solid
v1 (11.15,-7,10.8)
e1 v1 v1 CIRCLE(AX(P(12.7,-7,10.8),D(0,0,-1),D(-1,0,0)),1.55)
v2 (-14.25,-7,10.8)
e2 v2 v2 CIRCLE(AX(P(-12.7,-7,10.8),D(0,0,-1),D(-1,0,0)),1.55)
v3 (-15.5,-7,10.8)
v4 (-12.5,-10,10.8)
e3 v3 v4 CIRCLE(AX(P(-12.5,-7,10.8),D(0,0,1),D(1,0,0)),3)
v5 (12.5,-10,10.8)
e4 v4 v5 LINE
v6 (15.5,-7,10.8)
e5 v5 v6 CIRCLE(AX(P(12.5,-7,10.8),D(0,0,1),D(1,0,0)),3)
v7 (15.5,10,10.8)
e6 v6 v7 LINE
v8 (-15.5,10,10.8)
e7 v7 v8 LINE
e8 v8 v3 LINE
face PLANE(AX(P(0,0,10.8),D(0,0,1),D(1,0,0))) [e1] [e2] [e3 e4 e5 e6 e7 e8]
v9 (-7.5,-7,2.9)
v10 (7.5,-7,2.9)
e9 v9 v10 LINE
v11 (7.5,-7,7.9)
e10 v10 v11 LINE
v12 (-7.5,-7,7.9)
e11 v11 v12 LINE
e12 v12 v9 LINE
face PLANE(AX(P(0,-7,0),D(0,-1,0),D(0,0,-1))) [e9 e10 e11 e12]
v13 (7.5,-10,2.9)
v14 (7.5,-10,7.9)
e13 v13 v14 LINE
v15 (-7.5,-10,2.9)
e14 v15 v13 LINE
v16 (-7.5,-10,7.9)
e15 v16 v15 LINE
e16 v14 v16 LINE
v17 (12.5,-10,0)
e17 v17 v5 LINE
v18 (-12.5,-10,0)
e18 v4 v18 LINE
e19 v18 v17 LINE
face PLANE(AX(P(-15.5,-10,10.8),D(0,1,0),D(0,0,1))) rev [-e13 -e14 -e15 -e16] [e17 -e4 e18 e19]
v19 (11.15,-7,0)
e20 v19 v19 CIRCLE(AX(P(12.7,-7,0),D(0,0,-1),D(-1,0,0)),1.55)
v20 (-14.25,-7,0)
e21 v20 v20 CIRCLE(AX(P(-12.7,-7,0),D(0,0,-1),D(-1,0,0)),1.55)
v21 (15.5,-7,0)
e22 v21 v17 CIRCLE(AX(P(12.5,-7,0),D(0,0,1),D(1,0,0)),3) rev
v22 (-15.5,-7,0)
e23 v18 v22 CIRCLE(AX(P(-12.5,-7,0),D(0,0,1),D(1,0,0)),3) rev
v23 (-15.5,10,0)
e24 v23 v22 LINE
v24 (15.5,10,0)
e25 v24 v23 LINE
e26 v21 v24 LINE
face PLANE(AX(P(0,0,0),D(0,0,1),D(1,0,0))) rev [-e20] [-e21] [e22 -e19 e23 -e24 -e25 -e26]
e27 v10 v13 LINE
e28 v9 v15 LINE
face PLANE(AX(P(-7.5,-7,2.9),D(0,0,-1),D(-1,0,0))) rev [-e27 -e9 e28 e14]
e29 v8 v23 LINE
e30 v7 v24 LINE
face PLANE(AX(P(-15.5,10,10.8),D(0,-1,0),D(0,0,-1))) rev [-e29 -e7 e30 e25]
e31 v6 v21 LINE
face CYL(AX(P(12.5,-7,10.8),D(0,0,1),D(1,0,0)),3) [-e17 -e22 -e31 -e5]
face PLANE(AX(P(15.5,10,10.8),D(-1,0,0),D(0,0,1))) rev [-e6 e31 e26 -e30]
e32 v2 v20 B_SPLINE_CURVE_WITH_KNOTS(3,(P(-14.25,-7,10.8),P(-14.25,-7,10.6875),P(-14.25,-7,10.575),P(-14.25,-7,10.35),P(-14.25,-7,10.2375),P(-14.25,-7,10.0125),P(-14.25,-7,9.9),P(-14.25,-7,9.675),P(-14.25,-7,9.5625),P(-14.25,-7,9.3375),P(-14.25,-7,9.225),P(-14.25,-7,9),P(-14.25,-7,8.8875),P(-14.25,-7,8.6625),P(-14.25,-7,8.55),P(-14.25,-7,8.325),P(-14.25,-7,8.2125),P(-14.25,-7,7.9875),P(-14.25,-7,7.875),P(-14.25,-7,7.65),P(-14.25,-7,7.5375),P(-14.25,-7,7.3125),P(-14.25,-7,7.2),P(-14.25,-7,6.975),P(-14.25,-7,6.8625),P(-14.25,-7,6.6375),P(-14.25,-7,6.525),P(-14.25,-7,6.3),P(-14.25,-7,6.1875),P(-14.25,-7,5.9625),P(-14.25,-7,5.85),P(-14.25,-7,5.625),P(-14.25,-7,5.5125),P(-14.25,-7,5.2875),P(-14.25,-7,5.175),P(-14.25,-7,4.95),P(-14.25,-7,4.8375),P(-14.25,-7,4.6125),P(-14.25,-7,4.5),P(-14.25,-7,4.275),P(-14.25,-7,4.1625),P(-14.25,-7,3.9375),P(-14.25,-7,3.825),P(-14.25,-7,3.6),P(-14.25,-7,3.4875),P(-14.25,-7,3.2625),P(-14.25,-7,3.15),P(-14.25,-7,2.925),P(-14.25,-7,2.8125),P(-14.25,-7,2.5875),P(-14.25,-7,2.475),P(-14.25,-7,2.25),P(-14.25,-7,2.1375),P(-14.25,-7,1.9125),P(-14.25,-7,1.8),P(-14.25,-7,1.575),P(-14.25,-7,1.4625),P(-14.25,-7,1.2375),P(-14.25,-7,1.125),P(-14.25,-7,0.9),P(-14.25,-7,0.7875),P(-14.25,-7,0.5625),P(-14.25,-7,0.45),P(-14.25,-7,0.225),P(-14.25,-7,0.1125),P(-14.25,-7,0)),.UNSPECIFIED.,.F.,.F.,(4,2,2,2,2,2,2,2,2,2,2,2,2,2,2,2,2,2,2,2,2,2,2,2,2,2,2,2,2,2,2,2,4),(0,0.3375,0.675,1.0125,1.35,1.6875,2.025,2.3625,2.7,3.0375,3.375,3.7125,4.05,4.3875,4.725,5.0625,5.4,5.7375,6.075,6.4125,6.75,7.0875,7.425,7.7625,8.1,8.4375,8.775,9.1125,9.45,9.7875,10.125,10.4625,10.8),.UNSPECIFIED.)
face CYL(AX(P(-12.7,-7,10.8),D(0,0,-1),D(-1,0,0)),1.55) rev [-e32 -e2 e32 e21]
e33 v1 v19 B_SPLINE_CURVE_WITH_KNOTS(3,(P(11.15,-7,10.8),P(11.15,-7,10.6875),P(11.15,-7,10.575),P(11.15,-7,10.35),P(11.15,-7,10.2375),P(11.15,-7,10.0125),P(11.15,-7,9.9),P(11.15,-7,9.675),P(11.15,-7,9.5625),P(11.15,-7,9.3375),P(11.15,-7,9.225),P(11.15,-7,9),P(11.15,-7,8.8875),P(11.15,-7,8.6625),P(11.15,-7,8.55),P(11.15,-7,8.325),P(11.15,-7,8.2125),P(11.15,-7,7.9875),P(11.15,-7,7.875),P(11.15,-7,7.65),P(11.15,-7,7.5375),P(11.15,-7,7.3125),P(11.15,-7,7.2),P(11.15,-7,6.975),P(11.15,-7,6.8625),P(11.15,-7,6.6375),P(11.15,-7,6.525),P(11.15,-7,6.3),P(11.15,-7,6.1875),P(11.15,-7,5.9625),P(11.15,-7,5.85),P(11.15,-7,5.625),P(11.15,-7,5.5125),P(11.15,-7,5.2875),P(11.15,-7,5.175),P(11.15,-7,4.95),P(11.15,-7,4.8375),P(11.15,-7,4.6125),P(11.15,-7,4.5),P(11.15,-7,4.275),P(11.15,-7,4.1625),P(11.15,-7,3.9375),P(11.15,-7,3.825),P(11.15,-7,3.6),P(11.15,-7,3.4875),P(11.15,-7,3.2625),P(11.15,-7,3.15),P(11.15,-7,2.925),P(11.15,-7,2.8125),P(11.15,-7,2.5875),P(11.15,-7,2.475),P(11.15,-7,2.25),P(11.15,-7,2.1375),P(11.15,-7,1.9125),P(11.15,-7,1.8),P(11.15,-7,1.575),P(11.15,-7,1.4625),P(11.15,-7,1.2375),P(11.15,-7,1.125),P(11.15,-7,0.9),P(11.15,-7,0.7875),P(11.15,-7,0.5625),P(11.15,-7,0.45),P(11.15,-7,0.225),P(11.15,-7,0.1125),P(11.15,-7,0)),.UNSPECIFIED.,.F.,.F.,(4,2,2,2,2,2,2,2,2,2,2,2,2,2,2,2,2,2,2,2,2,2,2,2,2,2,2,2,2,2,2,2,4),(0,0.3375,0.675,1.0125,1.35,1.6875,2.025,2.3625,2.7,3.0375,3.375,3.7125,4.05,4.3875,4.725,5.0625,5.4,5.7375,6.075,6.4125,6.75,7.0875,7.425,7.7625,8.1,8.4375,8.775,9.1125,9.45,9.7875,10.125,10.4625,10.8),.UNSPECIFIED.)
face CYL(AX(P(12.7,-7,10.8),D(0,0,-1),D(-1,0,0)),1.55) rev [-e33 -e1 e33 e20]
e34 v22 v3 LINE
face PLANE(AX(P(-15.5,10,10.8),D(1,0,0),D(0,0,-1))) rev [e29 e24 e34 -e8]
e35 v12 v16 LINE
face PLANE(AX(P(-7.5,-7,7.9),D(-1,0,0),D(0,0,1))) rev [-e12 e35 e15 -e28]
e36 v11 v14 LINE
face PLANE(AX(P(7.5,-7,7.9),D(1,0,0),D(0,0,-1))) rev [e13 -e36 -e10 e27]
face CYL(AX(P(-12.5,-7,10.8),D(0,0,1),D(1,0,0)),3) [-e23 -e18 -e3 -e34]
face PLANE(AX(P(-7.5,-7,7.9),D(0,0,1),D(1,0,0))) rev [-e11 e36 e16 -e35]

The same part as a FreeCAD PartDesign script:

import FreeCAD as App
import Part
import Sketcher

V = App.Vector
Q = App.Units.Quantity


def edges_at(feature, points):
    """Names of the edges that pass closest to the given points."""
    edges = feature.Shape.Edges
    near = lambda p: min(range(len(edges)), key=lambda i: edges[i].distToShape(Part.Vertex(*p))[0])
    return sorted({f"Edge{near(p) + 1}" for p in points})


def add_polygon(sketch, points):
    """Adds a closed chain of lines whose ends are joined by coincident constraints."""
    first, n = sketch.GeometryCount, len(points)
    for a, b in zip(points, points[1:] + points[:1]):
        sketch.addGeometry(Part.LineSegment(App.Vector(*a, 0), App.Vector(*b, 0)), False)
    for i in range(n):
        sketch.addConstraint(Sketcher.Constraint("Coincident", first + i, 2, first + (i + 1) % n, 1))

doc = App.newDocument("Part")
body = doc.addObject("PartDesign::Body", "Body")

# Sketch on XY plane
sketch1 = doc.addObject("Sketcher::SketchObject", "Sketch")
body.addObject(sketch1)
sketch1.AttachmentSupport = (doc.XY_Plane, [""])
sketch1.MapMode = "FlatFace"
add_polygon(sketch1, [(-16, 10), (-16, -10), (16, -10), (16, 10)])  # lines 0-3
sketch1.addConstraint([
    Sketcher.Constraint("Vertical", 0),
    Sketcher.Constraint("Horizontal", 1),
    Sketcher.Constraint("Vertical", 2),
    Sketcher.Constraint("Horizontal", 3),
    Sketcher.Constraint("Symmetric", 0, 2, 2, 2, -1, 1),
    Sketcher.Constraint("DistanceX", 1, 1, 1, 2, Q("31 mm")),
    Sketcher.Constraint("DistanceY", 0, 2, 0, 1, Q("20 mm")),
])
pad1 = doc.addObject("PartDesign::Pad", "Pad")
body.addObject(pad1)
pad1.Profile = sketch1
pad1.Length = 10.8

# Sketch on XY plane
sketch2 = doc.addObject("Sketcher::SketchObject", "Sketch001")
body.addObject(sketch2)
sketch2.AttachmentSupport = (doc.XY_Plane, [""])
sketch2.MapMode = "FlatFace"
sketch2.addGeometry([
    Part.Circle(V(12.7, -7, 0), V(0, 0, 1), 1.6),
    Part.Circle(V(-12.7, -7, 0), V(0, 0, 1), 1.6),
], False)
sketch2.addConstraint([
    Sketcher.Constraint("Equal", 0, 1),
    Sketcher.Constraint("Symmetric", 0, 3, 1, 3, -2),
    Sketcher.Constraint("Diameter", 0, Q("3.1 mm")),
    Sketcher.Constraint("DistanceY", 0, 3, -1, 1, Q("7 mm")),
    Sketcher.Constraint("DistanceX", -1, 1, 0, 3, Q("12.7 mm")),
])
pocket1 = doc.addObject("PartDesign::Pocket", "Pocket")
body.addObject(pocket1)
pocket1.Profile = sketch2
pocket1.Type = "ThroughAll"
pocket1.Reversed = True
doc.recompute()

fillet = doc.addObject("PartDesign::Fillet", "Fillet")
body.addObject(fillet)
fillet.Base = (pocket1, edges_at(pocket1, [(-15.5, -10, 5.4)]))
fillet.Radius = 3
doc.recompute()

fillet2 = doc.addObject("PartDesign::Fillet", "Fillet001")
body.addObject(fillet2)
fillet2.Base = (fillet, edges_at(fillet, [(15.5, -10, 5.4)]))
fillet2.Radius = 3

# Sketch on XZ plane
sketch3 = doc.addObject("Sketcher::SketchObject", "Sketch002")
body.addObject(sketch3)
sketch3.AttachmentSupport = (doc.XZ_Plane, [""])
sketch3.MapMode = "FlatFace"
sketch3.AttachmentOffset = App.Placement(V(0, 0, 10), App.Rotation())
add_polygon(sketch3, [(-8, 8), (-8, 3), (8, 3), (8, 8)])  # lines 0-3
sketch3.addConstraint([
    Sketcher.Constraint("Vertical", 0),
    Sketcher.Constraint("Horizontal", 1),
    Sketcher.Constraint("Vertical", 2),
    Sketcher.Constraint("Horizontal", 3),
    Sketcher.Constraint("DistanceX", 1, 1, 1, 2, Q("15 mm")),
    Sketcher.Constraint("DistanceY", 0, 2, 0, 1, Q("5 mm")),
    Sketcher.Constraint("DistanceX", 0, 2, -1, 1, Q("7.5 mm")),
    Sketcher.Constraint("DistanceY", -1, 1, 0, 2, Q("2.9 mm")),
])
pocket2 = doc.addObject("PartDesign::Pocket", "Pocket001")
body.addObject(pocket2)
pocket2.Profile = sketch3
pocket2.Length = 3

doc.recompute()
